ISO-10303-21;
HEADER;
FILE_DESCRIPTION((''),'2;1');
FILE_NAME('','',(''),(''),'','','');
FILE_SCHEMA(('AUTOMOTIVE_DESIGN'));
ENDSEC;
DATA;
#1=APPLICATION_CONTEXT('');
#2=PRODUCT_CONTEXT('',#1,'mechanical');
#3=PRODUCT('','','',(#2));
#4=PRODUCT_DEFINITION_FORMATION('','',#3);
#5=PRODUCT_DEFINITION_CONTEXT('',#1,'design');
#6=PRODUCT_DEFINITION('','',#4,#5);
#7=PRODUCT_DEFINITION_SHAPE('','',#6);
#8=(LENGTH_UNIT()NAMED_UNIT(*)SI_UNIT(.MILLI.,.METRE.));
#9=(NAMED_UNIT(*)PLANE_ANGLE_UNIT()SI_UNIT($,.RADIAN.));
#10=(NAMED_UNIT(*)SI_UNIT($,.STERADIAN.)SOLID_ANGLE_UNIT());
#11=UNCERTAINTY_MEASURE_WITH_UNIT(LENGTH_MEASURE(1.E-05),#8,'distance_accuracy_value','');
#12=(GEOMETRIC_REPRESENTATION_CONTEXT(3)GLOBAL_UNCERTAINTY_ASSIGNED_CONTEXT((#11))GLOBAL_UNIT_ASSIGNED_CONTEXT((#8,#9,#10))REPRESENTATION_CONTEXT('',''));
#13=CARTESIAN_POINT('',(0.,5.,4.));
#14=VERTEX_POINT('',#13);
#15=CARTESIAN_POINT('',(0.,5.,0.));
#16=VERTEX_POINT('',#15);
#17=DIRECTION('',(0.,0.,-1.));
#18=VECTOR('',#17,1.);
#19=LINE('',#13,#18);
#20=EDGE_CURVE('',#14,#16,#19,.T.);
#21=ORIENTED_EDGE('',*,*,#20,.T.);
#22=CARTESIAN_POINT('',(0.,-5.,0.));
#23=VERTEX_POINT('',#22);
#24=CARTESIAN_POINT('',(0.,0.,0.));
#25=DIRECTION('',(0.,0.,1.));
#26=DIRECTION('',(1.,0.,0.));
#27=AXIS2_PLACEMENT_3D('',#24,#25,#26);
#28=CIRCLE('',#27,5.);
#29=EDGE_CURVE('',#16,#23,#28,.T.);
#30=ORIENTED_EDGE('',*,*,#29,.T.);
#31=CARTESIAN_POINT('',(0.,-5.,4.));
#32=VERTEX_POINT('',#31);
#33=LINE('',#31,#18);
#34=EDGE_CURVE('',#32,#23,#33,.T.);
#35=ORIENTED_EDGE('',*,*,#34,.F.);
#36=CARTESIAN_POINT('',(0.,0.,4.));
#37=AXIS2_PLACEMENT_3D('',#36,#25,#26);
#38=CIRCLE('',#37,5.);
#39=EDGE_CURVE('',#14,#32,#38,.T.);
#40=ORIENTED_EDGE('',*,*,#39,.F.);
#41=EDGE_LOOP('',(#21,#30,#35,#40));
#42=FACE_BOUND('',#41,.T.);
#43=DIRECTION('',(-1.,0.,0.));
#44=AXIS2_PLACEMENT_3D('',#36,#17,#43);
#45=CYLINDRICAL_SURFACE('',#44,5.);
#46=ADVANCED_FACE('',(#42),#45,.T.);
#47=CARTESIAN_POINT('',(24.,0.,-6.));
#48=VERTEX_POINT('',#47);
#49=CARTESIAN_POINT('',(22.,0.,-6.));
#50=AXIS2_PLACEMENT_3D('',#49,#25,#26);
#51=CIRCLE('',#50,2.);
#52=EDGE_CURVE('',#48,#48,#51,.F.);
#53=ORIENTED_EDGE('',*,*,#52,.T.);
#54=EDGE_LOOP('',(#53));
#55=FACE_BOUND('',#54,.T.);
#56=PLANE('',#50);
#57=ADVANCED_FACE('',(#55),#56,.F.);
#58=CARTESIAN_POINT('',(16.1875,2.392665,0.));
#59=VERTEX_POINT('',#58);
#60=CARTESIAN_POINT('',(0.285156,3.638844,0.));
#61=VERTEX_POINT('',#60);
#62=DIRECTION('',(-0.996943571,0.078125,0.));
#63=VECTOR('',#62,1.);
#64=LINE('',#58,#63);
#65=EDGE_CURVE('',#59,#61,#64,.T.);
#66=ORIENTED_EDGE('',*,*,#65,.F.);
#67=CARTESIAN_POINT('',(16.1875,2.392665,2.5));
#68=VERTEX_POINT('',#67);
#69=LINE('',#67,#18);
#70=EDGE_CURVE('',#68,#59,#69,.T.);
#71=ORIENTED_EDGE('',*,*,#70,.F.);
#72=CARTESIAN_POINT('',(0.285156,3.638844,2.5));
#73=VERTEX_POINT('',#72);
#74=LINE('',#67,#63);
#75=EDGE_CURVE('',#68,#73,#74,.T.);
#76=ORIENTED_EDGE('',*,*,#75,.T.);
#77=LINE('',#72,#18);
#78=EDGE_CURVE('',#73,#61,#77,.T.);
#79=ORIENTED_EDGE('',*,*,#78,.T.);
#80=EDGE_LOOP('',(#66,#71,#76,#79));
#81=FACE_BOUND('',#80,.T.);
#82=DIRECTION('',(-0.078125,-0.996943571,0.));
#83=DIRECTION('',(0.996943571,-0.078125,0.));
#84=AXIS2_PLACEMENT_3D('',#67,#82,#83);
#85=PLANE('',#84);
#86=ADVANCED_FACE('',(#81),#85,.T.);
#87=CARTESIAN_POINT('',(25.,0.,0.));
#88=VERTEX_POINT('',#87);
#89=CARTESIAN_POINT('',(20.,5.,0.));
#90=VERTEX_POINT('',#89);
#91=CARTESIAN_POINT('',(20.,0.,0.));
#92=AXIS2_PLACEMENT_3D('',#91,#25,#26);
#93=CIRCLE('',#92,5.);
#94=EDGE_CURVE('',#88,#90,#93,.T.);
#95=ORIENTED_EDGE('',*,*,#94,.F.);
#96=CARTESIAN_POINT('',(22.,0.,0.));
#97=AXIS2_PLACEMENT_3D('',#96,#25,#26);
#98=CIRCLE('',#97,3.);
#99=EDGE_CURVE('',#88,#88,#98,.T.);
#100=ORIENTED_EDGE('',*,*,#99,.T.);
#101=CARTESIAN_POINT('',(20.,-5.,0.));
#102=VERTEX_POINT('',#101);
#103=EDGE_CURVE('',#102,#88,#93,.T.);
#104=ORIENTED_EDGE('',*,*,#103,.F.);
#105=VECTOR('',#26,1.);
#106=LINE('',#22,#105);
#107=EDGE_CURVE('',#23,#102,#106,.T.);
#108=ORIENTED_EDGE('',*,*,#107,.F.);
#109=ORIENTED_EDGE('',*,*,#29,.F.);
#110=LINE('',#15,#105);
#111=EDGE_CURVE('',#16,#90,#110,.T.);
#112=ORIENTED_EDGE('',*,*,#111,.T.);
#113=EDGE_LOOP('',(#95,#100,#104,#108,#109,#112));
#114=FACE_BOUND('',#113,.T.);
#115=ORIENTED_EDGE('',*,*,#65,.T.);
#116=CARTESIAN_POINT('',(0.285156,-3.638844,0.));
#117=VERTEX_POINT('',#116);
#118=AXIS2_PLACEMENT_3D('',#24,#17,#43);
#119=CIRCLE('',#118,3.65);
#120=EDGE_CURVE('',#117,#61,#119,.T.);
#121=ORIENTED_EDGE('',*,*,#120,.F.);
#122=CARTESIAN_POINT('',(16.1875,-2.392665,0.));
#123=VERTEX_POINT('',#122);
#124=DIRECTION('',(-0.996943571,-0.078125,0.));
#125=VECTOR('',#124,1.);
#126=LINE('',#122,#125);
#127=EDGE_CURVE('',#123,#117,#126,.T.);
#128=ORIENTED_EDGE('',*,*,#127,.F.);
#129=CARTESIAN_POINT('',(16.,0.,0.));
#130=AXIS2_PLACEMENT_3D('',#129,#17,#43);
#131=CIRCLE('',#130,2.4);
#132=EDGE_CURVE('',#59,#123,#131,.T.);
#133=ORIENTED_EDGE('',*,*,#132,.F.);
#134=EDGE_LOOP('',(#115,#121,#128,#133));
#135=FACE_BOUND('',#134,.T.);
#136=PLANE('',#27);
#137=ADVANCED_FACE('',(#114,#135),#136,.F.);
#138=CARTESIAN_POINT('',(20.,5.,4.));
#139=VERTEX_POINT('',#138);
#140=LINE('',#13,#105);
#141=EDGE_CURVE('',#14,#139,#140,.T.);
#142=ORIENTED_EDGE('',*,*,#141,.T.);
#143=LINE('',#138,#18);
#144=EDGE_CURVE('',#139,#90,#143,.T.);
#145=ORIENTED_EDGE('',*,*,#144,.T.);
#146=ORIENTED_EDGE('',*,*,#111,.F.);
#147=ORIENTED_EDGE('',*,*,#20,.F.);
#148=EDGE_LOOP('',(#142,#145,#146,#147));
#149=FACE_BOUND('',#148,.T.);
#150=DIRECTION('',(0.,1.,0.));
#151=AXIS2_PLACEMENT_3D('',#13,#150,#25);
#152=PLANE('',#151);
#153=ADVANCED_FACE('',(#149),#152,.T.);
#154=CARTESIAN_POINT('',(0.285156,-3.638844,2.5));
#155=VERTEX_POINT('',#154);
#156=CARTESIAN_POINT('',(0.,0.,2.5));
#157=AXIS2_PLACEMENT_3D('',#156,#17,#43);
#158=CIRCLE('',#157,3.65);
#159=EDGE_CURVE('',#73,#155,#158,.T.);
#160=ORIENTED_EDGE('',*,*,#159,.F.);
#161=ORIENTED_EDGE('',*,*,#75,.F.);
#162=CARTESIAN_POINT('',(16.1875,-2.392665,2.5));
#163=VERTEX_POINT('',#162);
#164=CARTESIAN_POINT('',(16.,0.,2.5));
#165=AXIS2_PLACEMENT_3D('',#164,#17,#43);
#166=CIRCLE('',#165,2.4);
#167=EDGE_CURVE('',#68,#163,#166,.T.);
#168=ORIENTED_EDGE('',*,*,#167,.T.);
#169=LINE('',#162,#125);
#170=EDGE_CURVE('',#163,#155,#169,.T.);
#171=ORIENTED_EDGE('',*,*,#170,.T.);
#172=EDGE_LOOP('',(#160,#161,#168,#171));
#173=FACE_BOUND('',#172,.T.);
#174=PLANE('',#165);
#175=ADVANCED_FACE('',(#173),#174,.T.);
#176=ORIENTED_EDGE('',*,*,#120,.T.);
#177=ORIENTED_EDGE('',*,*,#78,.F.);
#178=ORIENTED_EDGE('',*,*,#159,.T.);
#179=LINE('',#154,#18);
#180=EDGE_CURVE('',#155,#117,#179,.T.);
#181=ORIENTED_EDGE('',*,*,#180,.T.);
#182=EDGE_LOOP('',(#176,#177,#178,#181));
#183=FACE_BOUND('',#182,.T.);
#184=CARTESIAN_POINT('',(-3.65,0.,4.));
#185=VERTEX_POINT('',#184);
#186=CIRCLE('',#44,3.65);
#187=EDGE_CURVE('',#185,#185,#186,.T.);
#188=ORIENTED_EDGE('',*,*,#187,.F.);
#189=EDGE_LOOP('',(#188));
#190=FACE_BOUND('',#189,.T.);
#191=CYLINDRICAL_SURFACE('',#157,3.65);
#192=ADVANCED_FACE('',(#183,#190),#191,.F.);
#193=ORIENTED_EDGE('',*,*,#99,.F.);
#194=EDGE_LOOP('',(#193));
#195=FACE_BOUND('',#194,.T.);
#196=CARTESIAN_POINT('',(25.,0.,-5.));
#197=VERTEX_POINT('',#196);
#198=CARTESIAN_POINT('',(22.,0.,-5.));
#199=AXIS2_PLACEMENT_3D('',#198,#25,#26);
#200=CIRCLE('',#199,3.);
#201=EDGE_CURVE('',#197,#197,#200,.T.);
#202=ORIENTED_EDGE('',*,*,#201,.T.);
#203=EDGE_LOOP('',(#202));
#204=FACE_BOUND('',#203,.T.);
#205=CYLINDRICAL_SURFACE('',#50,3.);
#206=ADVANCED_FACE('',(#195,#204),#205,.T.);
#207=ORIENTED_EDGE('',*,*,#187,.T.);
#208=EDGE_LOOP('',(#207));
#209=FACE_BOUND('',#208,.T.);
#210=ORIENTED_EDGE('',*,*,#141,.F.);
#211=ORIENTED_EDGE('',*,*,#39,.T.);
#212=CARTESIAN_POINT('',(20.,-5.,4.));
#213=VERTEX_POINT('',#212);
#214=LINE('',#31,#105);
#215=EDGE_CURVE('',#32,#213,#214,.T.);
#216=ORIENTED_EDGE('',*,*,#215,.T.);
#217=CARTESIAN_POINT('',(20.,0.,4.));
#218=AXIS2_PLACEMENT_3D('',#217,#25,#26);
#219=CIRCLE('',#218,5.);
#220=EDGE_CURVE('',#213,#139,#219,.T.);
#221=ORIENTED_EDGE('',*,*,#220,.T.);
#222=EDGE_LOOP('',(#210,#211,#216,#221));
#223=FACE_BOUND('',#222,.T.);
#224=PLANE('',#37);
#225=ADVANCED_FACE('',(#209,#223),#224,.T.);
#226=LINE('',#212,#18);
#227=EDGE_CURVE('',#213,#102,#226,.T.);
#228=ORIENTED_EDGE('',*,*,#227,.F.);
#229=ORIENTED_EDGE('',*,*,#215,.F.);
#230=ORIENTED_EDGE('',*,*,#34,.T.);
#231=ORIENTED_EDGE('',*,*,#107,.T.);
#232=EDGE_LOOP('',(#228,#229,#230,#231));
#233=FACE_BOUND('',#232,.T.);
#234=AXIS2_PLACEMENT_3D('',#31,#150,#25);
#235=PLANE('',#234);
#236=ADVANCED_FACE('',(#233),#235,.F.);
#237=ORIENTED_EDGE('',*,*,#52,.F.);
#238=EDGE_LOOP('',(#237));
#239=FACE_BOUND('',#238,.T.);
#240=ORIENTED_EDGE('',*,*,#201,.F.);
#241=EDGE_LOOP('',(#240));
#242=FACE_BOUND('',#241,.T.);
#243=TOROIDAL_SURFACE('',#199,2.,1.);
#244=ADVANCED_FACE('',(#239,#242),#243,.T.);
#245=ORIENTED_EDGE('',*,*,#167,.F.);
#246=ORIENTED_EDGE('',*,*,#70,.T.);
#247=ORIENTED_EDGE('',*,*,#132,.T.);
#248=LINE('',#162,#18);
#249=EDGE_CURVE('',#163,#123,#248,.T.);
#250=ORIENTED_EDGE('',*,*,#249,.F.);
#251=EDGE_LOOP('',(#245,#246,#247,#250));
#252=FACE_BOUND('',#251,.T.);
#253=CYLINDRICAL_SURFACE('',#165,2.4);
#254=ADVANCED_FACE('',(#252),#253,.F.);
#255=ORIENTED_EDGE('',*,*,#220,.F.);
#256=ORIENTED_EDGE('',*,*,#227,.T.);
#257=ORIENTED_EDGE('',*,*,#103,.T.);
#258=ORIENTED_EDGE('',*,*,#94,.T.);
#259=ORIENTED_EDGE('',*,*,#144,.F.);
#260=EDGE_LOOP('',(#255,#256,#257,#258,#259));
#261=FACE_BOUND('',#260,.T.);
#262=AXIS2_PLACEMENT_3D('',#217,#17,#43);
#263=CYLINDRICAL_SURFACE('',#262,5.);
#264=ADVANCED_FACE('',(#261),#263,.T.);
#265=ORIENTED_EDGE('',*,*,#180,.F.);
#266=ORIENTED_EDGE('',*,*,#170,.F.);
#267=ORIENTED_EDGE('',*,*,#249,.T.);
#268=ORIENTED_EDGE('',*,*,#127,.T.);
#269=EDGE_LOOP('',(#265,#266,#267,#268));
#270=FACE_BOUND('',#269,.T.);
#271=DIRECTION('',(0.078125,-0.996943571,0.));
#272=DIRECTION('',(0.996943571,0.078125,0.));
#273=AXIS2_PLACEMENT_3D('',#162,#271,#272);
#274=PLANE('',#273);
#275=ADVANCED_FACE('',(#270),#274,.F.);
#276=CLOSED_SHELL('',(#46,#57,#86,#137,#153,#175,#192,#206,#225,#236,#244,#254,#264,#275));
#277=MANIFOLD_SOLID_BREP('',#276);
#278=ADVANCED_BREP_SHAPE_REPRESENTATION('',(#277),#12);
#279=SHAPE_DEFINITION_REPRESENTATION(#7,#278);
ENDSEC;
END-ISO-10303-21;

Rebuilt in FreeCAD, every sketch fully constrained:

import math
import FreeCAD as App
import Part
import Sketcher

V = App.Vector
Q = App.Units.Quantity


def edges_at(feature, points):
    """Names of the edges that pass closest to the given points."""
    edges = feature.Shape.Edges
    near = lambda p: min(range(len(edges)), key=lambda i: edges[i].distToShape(Part.Vertex(*p))[0])
    return sorted({f"Edge{near(p) + 1}" for p in points})

doc = App.newDocument("Part")
body = doc.addObject("PartDesign::Body", "Body")

# Sketch on XY plane
sketch1 = body.newObject("Sketcher::SketchObject", "Sketch")
sketch1.AttachmentSupport = (doc.getObject("XY_Plane"), [""])
sketch1.MapMode = "FlatFace"
sketch1.addGeometry(Part.LineSegment(V(20, 5, 0), V(0, 5, 0)), False)
sketch1.addGeometry(Part.ArcOfCircle(Part.Circle(V(0, 0, 0), V(0, 0, 1), 5), math.radians(90), math.radians(270)), False)
sketch1.addGeometry(Part.LineSegment(V(0, -5, 0), V(20, -5, 0)), False)
sketch1.addGeometry(Part.ArcOfCircle(Part.Circle(V(20, 0, 0), V(0, 0, 1), 5), math.radians(-90), math.radians(90)), False)
sketch1.addConstraint(Sketcher.Constraint("Tangent", 0, 2, 1, 1))
sketch1.addConstraint(Sketcher.Constraint("Tangent", 1, 2, 2, 1))
sketch1.addConstraint(Sketcher.Constraint("Tangent", 2, 2, 3, 1))
sketch1.addConstraint(Sketcher.Constraint("Tangent", 3, 2, 0, 1))
sketch1.addConstraint(Sketcher.Constraint("Horizontal", 0))
sketch1.addConstraint(Sketcher.Constraint("Horizontal", 2))
sketch1.addConstraint(Sketcher.Constraint("Coincident", 1, 3, -1, 1))
sketch1.addConstraint(Sketcher.Constraint("Radius", 1, Q("5 mm")))
sketch1.addConstraint(Sketcher.Constraint("DistanceX", 0, 2, 0, 1, Q("20 mm")))
pad1 = body.newObject("PartDesign::Pad", "Pad")
pad1.Profile = sketch1
pad1.Length = 4

# Sketch on XY plane
sketch2 = body.newObject("Sketcher::SketchObject", "Sketch001")
sketch2.AttachmentSupport = (doc.getObject("XY_Plane"), [""])
sketch2.MapMode = "FlatFace"
sketch2.addGeometry(Part.Circle(V(22, 0, 0), V(0, 0, 1), 3), False)
sketch2.addConstraint(Sketcher.Constraint("PointOnObject", 0, 3, -1))
sketch2.addConstraint(Sketcher.Constraint("Diameter", 0, Q("6 mm")))
sketch2.addConstraint(Sketcher.Constraint("DistanceX", -1, 1, 0, 3, Q("22 mm")))
pad2 = body.newObject("PartDesign::Pad", "Pad001")
pad2.Profile = sketch2
pad2.Length = 6
pad2.Reversed = True

# Sketch on XY plane
sketch3 = body.newObject("Sketcher::SketchObject", "Sketch002")
sketch3.AttachmentSupport = (doc.getObject("XY_Plane"), [""])
sketch3.MapMode = "FlatFace"
sketch3.addGeometry(Part.LineSegment(V(0.3, 3.6, 0), V(16.2, 2.4, 0)), False)
sketch3.addGeometry(Part.ArcOfCircle(Part.Circle(V(16, 0, 0), V(0, 0, 1), 2.4), math.radians(-86), math.radians(86)), False)
sketch3.addGeometry(Part.LineSegment(V(16.2, -2.4, 0), V(0.3, -3.6, 0)), False)
sketch3.addGeometry(Part.ArcOfCircle(Part.Circle(V(0, 0, 0), V(0, 0, 1), 3.6), math.radians(86), math.radians(274)), False)
sketch3.addConstraint(Sketcher.Constraint("Tangent", 0, 2, 1, 2))
sketch3.addConstraint(Sketcher.Constraint("Tangent", 1, 1, 2, 1))
sketch3.addConstraint(Sketcher.Constraint("Tangent", 2, 2, 3, 2))
sketch3.addConstraint(Sketcher.Constraint("Tangent", 3, 1, 0, 1))
sketch3.addConstraint(Sketcher.Constraint("Coincident", 3, 3, -1, 1))
sketch3.addConstraint(Sketcher.Constraint("PointOnObject", 1, 3, -1))
sketch3.addConstraint(Sketcher.Constraint("Radius", 1, Q("2.4 mm")))
sketch3.addConstraint(Sketcher.Constraint("Radius", 3, Q("3.65 mm")))
sketch3.addConstraint(Sketcher.Constraint("DistanceX", -1, 1, 1, 3, Q("16 mm")))
pocket1 = body.newObject("PartDesign::Pocket", "Pocket")
pocket1.Profile = sketch3
pocket1.Length = 2.5
pocket1.Reversed = True

# Sketch on XY plane
sketch4 = body.newObject("Sketcher::SketchObject", "Sketch003")
sketch4.AttachmentSupport = (doc.getObject("XY_Plane"), [""])
sketch4.MapMode = "FlatFace"
sketch4.AttachmentOffset = App.Placement(V(0, 0, 2.5), App.Rotation())
sketch4.addGeometry(Part.Circle(V(0, 0, 0), V(0, 0, 1), 3.6), False)
sketch4.addConstraint(Sketcher.Constraint("Coincident", 0, 3, -1, 1))
sketch4.addConstraint(Sketcher.Constraint("Diameter", 0, Q("7.3 mm")))
pocket2 = body.newObject("PartDesign::Pocket", "Pocket001")
pocket2.Profile = sketch4
pocket2.Type = "ThroughAll"
pocket2.Reversed = True
doc.recompute()

fillet = body.newObject("PartDesign::Fillet", "Fillet")
fillet.Base = (pocket2, edges_at(pocket2, [(19, 0, -6)]))
fillet.Radius = 1

doc.recompute()
